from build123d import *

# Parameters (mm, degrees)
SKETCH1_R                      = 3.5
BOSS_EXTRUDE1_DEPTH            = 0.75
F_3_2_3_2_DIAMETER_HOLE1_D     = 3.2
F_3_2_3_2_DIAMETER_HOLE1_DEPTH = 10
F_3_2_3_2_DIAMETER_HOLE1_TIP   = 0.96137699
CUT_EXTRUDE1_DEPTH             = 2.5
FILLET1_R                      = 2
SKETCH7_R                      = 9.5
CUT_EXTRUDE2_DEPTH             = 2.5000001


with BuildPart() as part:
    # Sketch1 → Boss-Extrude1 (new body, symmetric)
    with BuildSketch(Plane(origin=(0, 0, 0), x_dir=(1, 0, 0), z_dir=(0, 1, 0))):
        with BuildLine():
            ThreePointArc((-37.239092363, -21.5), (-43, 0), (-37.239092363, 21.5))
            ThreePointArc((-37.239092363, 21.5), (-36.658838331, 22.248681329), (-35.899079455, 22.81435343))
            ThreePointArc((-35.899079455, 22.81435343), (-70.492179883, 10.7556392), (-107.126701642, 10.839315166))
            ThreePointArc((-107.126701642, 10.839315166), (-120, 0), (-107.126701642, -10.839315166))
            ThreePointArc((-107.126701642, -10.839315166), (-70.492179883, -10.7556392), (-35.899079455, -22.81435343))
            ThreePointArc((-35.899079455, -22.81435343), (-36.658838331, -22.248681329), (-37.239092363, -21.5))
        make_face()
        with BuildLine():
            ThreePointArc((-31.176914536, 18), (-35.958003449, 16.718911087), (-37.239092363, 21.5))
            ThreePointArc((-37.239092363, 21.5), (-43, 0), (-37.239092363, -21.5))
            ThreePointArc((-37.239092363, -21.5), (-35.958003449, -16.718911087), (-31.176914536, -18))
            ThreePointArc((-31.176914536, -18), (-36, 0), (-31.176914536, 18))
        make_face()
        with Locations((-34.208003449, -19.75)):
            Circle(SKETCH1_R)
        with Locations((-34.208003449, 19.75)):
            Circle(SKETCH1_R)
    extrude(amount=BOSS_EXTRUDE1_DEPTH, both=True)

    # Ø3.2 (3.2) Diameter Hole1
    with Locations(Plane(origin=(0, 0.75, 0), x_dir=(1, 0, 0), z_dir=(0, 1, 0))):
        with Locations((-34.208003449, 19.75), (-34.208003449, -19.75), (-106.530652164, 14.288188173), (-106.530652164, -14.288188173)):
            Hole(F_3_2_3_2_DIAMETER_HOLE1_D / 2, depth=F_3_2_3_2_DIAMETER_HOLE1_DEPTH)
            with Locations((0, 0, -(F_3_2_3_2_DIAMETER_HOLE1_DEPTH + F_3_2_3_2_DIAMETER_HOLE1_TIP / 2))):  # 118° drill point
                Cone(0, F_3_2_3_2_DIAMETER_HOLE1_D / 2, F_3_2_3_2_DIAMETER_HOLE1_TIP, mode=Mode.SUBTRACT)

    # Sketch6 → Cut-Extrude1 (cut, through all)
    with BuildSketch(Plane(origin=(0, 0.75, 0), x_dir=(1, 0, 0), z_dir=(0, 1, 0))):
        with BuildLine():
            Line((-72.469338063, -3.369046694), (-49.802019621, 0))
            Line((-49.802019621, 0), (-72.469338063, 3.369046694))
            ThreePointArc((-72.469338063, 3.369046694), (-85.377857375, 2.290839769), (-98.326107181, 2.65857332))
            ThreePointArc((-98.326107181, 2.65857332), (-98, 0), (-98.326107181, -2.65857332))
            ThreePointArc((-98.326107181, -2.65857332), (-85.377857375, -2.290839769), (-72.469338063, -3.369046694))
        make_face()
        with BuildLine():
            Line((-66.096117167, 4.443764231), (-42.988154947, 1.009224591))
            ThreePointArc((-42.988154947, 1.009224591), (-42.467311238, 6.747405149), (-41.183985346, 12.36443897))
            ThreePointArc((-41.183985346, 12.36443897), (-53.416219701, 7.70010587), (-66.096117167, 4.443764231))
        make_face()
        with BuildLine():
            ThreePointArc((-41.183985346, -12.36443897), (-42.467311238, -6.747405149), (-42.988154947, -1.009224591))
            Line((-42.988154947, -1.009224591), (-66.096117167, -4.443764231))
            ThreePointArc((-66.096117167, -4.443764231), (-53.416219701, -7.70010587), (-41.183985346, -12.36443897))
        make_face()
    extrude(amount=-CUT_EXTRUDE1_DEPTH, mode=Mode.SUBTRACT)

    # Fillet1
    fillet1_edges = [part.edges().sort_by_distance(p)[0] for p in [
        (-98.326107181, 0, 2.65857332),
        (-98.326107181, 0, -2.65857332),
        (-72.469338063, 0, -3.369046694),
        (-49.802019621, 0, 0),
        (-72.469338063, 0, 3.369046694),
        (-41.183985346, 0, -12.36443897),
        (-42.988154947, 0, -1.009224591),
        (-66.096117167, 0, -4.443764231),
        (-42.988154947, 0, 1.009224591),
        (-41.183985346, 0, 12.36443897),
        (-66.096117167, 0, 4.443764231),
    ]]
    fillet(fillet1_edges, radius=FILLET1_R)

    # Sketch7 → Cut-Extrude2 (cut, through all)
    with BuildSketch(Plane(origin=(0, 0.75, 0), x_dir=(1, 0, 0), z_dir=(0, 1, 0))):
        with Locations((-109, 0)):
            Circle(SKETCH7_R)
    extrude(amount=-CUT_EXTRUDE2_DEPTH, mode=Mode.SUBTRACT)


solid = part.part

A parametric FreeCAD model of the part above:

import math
import FreeCAD as App
import Part
import Sketcher
from FreeCAD import Vector


def edges_at(feature, points):
    """Names of the edges that pass closest to the given points."""
    edges = feature.Shape.Edges
    near = lambda p: min(range(len(edges)), key=lambda i: edges[i].distToShape(Part.Vertex(*p))[0])
    return sorted({f"Edge{near(p) + 1}" for p in points})

doc = App.newDocument("Part")
body = doc.addObject("PartDesign::Body", "Body")

sketch1 = body.newObject("Sketcher::SketchObject", "Sketch")
sketch1.AttachmentSupport = (doc.getObject("XZ_Plane"), [""])
sketch1.MapMode = "FlatFace"
sketch1.addGeometry([
    Part.ArcOfCircle(Part.Circle(Vector(-88.6, -118.2, 0), Vector(0, 0, 1), 109), math.radians(61), math.radians(100)),
    Part.ArcOfCircle(Part.Circle(Vector(-109, 0, 0), Vector(0, 0, 1), 11), math.radians(80), math.radians(280)),
    Part.ArcOfCircle(Part.Circle(Vector(-88.6, 118.2, 0), Vector(0, 0, 1), 109), math.radians(-100), math.radians(-61)),
    Part.ArcOfCircle(Part.Circle(Vector(-34.2, 19.8, 0), Vector(0, 0, 1), 3.5), math.radians(-30), math.radians(119)),
    Part.ArcOfCircle(Part.Circle(Vector(0, 0, 0), Vector(0, 0, 1), 36), math.radians(150), math.radians(210)),
    Part.ArcOfCircle(Part.Circle(Vector(-34.2, -19.8, 0), Vector(0, 0, 1), 3.5), math.radians(-119), math.radians(30)),
], False)
sketch1.addConstraint([
    Sketcher.Constraint("Tangent", 0, 2, 1, 2),
    Sketcher.Constraint("Tangent", 1, 1, 2, 1),
    Sketcher.Constraint("Tangent", 2, 2, 3, 2),
    Sketcher.Constraint("Tangent", 3, 1, 4, 1),
    Sketcher.Constraint("Tangent", 4, 2, 5, 2),
    Sketcher.Constraint("Tangent", 5, 1, 0, 1),
    Sketcher.Constraint("Coincident", 4, 3, -1, 1),
    Sketcher.Constraint("Equal", 0, 2),
    Sketcher.Constraint("Equal", 3, 5),
    Sketcher.Constraint("Symmetric", 0, 3, 2, 3, -1),
    Sketcher.Constraint("Radius", 0, 109.0),
    Sketcher.Constraint("Radius", 1, 11.0),
    Sketcher.Constraint("Radius", 4, 36.0),
    Sketcher.Constraint("Radius", 3, 3.5),
    Sketcher.Constraint("DistanceX", 1, 3, -1, 1, 109.0),
    Sketcher.Constraint("DistanceY", -1, 1, 3, 1, 18.0),
])
pad1 = body.newObject("PartDesign::Pad", "Pad")
pad1.Profile = sketch1
pad1.Length = 1.5
pad1.Midplane = True

sketch2 = body.newObject("Sketcher::SketchObject", "Sketch001")
sketch2.AttachmentSupport = (doc.getObject("XZ_Plane"), [""])
sketch2.MapMode = "FlatFace"
sketch2.AttachmentOffset = App.Placement(Vector(0, 0, -0.75), App.Rotation())
sketch2.addGeometry([
    Part.Circle(Vector(-34.2, -19.8, 0), Vector(0, 0, 1), 1.6),
    Part.Circle(Vector(-34.2, 19.8, 0), Vector(0, 0, 1), 1.6),
    Part.Circle(Vector(-106.5, -14.3, 0), Vector(0, 0, 1), 1.6),
    Part.Circle(Vector(-106.5, 14.3, 0), Vector(0, 0, 1), 1.6),
], False)
sketch2.addConstraint([
    Sketcher.Constraint("Equal", 0, 1),
    Sketcher.Constraint("Equal", 1, 2),
    Sketcher.Constraint("Equal", 2, 3),
    Sketcher.Constraint("Symmetric", 0, 3, 1, 3, -1),
    Sketcher.Constraint("Symmetric", 2, 3, 3, 3, -1),
    Sketcher.Constraint("Diameter", 0, 3.2),
    Sketcher.Constraint("DistanceY", 0, 3, 1, 3, 39.5),
    Sketcher.Constraint("DistanceY", 2, 3, -1, 1, 14.288188),
    Sketcher.Constraint("DistanceX", 2, 3, 0, 3, 72.322649),
    Sketcher.Constraint("DistanceX", 0, 3, -1, 1, 34.208003),
])
doc.recompute()
hole = body.newObject("PartDesign::Hole", "Hole")
hole.Profile = sketch2
hole.ThreadType = "None"
hole.Diameter = 3.2
hole.DepthType = "Dimension"
hole.Depth = 10
hole.DrillPoint = "Angled"
hole.DrillPointAngle = 118
hole.Reversed = True

sketch3 = body.newObject("Sketcher::SketchObject", "Sketch002")
sketch3.AttachmentSupport = (doc.getObject("XZ_Plane"), [""])
sketch3.MapMode = "FlatFace"
sketch3.AttachmentOffset = App.Placement(Vector(0, 0, -0.75), App.Rotation())
sketch3.addGeometry([
    Part.LineSegment(Vector(-72, 3, 0), Vector(-50, 0, 0)),
    Part.LineSegment(Vector(-50, 0, 0), Vector(-72, -3, 0)),
    Part.ArcOfCircle(Part.Circle(Vector(-89, -118, 0), Vector(0, 0, 1), 116), math.radians(82.02), math.radians(94.83)),
    Part.ArcOfCircle(Part.Circle(Vector(-109, 0, 0), Vector(0, 0, 1), 11), math.radians(-14), math.radians(14)),
    Part.ArcOfCircle(Part.Circle(Vector(-89, 118, 0), Vector(0, 0, 1), 116), math.radians(-94.83), math.radians(-82.02)),
    Part.LineSegment(Vector(-66, -4, 0), Vector(-43, -1, 0)),
    Part.ArcOfCircle(Part.Circle(Vector(0, 0, 0), Vector(0, 0, 1), 43), math.radians(-178.66), math.radians(-163.29)),
    Part.ArcOfCircle(Part.Circle(Vector(-89, -118, 0), Vector(0, 0, 1), 116), math.radians(65.89), math.radians(78.83)),
    Part.ArcOfCircle(Part.Circle(Vector(0, 0, 0), Vector(0, 0, 1), 43), math.radians(163.29), math.radians(178.66)),
    Part.LineSegment(Vector(-43, 1, 0), Vector(-66, 4, 0)),
    Part.ArcOfCircle(Part.Circle(Vector(-89, 118, 0), Vector(0, 0, 1), 116), math.radians(-78.83), math.radians(-65.89)),
], False)
sketch3.addConstraint([
    Sketcher.Constraint("Coincident", 0, 2, 1, 1),
    Sketcher.Constraint("Coincident", 1, 2, 2, 1),
    Sketcher.Constraint("Coincident", 2, 2, 3, 1),
    Sketcher.Constraint("Coincident", 3, 2, 4, 1),
    Sketcher.Constraint("Coincident", 4, 2, 0, 1),
    Sketcher.Constraint("Coincident", 5, 2, 6, 1),
    Sketcher.Constraint("Coincident", 6, 2, 7, 1),
    Sketcher.Constraint("Coincident", 7, 2, 5, 1),
    Sketcher.Constraint("Coincident", 8, 2, 9, 1),
    Sketcher.Constraint("Coincident", 9, 2, 10, 1),
    Sketcher.Constraint("Coincident", 10, 2, 8, 1),
    Sketcher.Constraint("Coincident", 6, 3, -1, 1),
    Sketcher.Constraint("Coincident", 8, 3, -1, 1),
    Sketcher.Constraint("Coincident", 7, 3, 2, 3),
    Sketcher.Constraint("Coincident", 10, 3, 4, 3),
    Sketcher.Constraint("Equal", 2, 4),
    Sketcher.Constraint("Equal", 4, 7),
    Sketcher.Constraint("Equal", 6, 8),
    Sketcher.Constraint("Equal", 7, 10),
    Sketcher.Constraint("Symmetric", 2, 3, 4, 3, -1),
    Sketcher.Constraint("PointOnObject", 3, 3, -1),
    Sketcher.Constraint("PointOnObject", 0, 2, -1),
    Sketcher.Constraint("Parallel", 1, 5),
    Sketcher.Constraint("Parallel", 0, 9),
    Sketcher.Constraint("Vertical", 1, 2, 4, 2),
    Sketcher.Constraint("Vertical", 5, 2, 8, 2),
    Sketcher.Constraint("Radius", 2, 116.0),
    Sketcher.Constraint("Radius", 3, 11.0),
    Sketcher.Constraint("Radius", 6, 43.0),
    Sketcher.Constraint("DistanceX", 3, 3, -1, 1, 109.0),
    Sketcher.Constraint("DistanceX", 2, 3, 0, 2, 38.761998),
    Sketcher.Constraint("Distance", 0, 22.916322),
    Sketcher.Constraint("DistanceX", 0, 2, -1, 1, 49.80202),
    Sketcher.Constraint("DistanceX", 1, 2, -1, 1, 72.469338),
    Sketcher.Constraint("DistanceY", 5, 2, 4, 2, 4.378271),
])
pocket1 = body.newObject("PartDesign::Pocket", "Pocket")
pocket1.Profile = sketch3
pocket1.Type = "ThroughAll"
pocket1.Reversed = True
doc.recompute()

fillet = body.newObject("PartDesign::Fillet", "Fillet")
fillet.Base = (pocket1, edges_at(pocket1, [
    (-98.326, 0, 2.659),
    (-98.326, 0, -2.659),
    (-72.469, 0, -3.369),
    (-49.802, 0, 0),
    (-72.469, 0, 3.369),
    (-41.184, 0, -12.364),
    (-42.988, 0, -1.009),
    (-66.096, 0, -4.444),
    (-42.988, 0, 1.009),
    (-41.184, 0, 12.364),
    (-66.096, 0, 4.444),
]))
fillet.Radius = 2

sketch4 = body.newObject("Sketcher::SketchObject", "Sketch003")
sketch4.AttachmentSupport = (doc.getObject("XZ_Plane"), [""])
sketch4.MapMode = "FlatFace"
sketch4.AttachmentOffset = App.Placement(Vector(0, 0, -0.75), App.Rotation())
sketch4.addGeometry(Part.Circle(Vector(-109, 0, 0), Vector(0, 0, 1), 10), False)
sketch4.addConstraint([
    Sketcher.Constraint("PointOnObject", 0, 3, -1),
    Sketcher.Constraint("Diameter", 0, 19.0),
    Sketcher.Constraint("DistanceX", 0, 3, -1, 1, 109.0),
])
pocket2 = body.newObject("PartDesign::Pocket", "Pocket001")
pocket2.Profile = sketch4
pocket2.Type = "ThroughAll"
pocket2.Reversed = True

doc.recompute()
